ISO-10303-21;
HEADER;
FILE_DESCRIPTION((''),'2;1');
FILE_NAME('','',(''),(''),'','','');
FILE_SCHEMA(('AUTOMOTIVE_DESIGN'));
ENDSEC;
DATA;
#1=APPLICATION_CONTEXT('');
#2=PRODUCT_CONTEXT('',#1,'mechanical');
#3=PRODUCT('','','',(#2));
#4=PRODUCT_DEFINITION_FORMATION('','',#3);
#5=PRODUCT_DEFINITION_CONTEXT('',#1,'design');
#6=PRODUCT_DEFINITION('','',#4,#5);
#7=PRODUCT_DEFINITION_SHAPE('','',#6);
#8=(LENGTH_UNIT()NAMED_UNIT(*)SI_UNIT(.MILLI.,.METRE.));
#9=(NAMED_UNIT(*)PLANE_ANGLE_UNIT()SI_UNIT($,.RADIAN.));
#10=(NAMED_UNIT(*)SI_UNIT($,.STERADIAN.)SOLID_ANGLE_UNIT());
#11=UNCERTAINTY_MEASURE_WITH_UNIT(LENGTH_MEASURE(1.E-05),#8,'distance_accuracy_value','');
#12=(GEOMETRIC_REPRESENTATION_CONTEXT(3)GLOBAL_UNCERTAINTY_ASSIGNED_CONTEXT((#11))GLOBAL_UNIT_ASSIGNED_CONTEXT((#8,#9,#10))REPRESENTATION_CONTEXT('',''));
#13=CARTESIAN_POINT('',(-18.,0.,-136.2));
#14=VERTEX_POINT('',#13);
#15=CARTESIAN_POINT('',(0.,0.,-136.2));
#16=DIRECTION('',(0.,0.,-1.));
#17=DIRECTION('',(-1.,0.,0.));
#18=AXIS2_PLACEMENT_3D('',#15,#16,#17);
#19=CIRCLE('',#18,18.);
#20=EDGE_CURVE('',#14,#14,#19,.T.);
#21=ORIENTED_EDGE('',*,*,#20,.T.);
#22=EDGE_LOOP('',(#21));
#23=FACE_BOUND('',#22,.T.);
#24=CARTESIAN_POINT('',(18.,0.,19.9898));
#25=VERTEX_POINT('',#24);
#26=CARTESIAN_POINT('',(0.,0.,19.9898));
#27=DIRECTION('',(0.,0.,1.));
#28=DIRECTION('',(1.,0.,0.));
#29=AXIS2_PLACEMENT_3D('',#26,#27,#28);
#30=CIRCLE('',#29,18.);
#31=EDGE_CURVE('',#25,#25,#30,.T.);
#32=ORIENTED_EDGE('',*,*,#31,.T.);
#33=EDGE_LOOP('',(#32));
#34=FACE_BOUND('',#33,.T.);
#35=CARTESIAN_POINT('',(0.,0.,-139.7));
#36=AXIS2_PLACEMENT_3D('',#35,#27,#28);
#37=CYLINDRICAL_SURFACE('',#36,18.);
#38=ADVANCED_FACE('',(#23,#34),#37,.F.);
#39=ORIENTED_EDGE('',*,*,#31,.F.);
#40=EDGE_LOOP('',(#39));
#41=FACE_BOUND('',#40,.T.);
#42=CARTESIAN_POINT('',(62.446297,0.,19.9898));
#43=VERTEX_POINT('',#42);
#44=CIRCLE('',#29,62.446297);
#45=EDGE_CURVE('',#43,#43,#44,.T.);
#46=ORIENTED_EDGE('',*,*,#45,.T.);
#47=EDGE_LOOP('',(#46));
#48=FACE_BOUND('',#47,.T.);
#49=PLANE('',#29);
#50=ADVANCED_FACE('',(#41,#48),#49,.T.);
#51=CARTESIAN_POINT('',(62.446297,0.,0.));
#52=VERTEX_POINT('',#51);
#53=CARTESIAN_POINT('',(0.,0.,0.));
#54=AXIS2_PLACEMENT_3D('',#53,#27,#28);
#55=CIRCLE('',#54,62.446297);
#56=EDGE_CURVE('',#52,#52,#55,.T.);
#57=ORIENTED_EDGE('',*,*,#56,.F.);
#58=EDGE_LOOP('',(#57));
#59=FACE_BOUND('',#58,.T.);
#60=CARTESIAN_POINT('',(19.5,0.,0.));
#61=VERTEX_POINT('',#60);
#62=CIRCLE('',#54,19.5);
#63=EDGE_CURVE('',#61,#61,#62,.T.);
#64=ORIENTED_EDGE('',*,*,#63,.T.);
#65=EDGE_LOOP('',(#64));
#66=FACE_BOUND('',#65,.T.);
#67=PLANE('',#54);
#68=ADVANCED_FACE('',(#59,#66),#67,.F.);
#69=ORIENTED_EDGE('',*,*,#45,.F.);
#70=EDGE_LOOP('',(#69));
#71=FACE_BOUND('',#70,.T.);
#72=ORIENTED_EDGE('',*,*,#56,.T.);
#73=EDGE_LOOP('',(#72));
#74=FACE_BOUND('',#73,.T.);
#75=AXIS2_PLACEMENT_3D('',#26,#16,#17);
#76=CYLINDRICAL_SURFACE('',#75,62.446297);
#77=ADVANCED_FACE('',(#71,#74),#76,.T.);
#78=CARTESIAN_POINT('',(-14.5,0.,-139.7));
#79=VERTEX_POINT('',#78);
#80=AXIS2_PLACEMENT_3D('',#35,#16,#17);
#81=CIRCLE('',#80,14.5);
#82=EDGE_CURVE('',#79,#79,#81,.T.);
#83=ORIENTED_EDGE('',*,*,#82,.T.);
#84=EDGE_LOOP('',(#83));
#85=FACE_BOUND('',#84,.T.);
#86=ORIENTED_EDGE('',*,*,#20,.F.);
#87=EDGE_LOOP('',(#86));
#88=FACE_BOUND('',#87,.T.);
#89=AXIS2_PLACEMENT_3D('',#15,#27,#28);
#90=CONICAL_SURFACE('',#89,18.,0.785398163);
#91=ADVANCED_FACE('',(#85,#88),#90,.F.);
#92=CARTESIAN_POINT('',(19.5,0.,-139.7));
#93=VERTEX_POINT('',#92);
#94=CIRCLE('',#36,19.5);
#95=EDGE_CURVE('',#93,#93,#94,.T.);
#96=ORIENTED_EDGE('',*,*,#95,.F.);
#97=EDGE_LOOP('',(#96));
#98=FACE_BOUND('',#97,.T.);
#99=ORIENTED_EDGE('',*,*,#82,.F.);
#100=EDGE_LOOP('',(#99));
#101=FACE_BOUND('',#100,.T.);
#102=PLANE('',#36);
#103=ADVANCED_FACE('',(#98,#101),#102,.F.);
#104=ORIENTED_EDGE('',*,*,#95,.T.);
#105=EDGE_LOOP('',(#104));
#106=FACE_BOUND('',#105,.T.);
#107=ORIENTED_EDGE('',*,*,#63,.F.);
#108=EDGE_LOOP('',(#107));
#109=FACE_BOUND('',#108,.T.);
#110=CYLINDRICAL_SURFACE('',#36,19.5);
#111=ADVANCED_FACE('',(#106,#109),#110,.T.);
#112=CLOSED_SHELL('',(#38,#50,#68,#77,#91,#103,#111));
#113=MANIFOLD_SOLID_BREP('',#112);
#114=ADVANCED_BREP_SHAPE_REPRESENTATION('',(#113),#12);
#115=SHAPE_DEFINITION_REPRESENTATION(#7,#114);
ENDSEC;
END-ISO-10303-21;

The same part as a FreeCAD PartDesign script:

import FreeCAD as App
import Part
import Sketcher

doc = App.newDocument("Part")
body = doc.addObject("PartDesign::Body", "Body")

# Sketch on XY plane
sketch1 = body.newObject("Sketcher::SketchObject", "Sketch")
sketch1.AttachmentSupport = (doc.getObject("XY_Plane"), [""])
sketch1.MapMode = "FlatFace"
sketch1.addGeometry([
    Part.Circle(App.Vector(0, 0, 0), App.Vector(0, 0, 1), 20),
    Part.Circle(App.Vector(0, 0, 0), App.Vector(0, 0, 1), 18),
], False)
sketch1.addConstraint([
    Sketcher.Constraint("Coincident", 0, 3, -1, 1),
    Sketcher.Constraint("Coincident", 1, 3, -1, 1),
    Sketcher.Constraint("Diameter", 0, 39.0),
    Sketcher.Constraint("Diameter", 1, 36.0),
])
pad1 = body.newObject("PartDesign::Pad", "Pad")
pad1.Profile = sketch1
pad1.Length = 139.7
pad1.Reversed = True

# Sketch on XY plane
sketch2 = body.newObject("Sketcher::SketchObject", "Sketch001")
sketch2.AttachmentSupport = (doc.getObject("XY_Plane"), [""])
sketch2.MapMode = "FlatFace"
sketch2.AttachmentOffset = App.Placement(App.Vector(0, 0, 19.9898), App.Rotation())
sketch2.addGeometry([
    Part.Circle(App.Vector(0, 0, 0), App.Vector(0, 0, 1), 62),
    Part.Circle(App.Vector(0, 0, 0), App.Vector(0, 0, 1), 18),
], False)
sketch2.addConstraint([
    Sketcher.Constraint("Coincident", 0, 3, -1, 1),
    Sketcher.Constraint("Coincident", 1, 3, -1, 1),
    Sketcher.Constraint("Diameter", 1, 36.0),
    Sketcher.Constraint("Diameter", 0, 124.892594),
])
pad2 = body.newObject("PartDesign::Pad", "Pad001")
pad2.Profile = sketch2
pad2.Length = 19.9898
pad2.Reversed = True

# Sketch on YZ plane
sketch3 = body.newObject("Sketcher::SketchObject", "Sketch002")
sketch3.AttachmentSupport = (doc.getObject("YZ_Plane"), [""])
sketch3.MapMode = "FlatFace"
sketch3.addGeometry([
    Part.LineSegment(App.Vector(14.5, -139.7, 0), App.Vector(18, -139.7, 0)),
    Part.LineSegment(App.Vector(18, -139.7, 0), App.Vector(18, -136.2, 0)),
    Part.LineSegment(App.Vector(18, -136.2, 0), App.Vector(14.5, -139.7, 0)),
], False)
sketch3.addConstraint([
    Sketcher.Constraint("Coincident", 0, 2, 1, 1),
    Sketcher.Constraint("Coincident", 1, 2, 2, 1),
    Sketcher.Constraint("Coincident", 2, 2, 0, 1),
    Sketcher.Constraint("Horizontal", 0),
    Sketcher.Constraint("Vertical", 1),
    Sketcher.Constraint("Equal", 0, 1),
    Sketcher.Constraint("DistanceX", 0, 1, 0, 2, 3.5),
    Sketcher.Constraint("DistanceX", -1, 1, 0, 2, 18.0),
    Sketcher.Constraint("DistanceY", 0, 2, -1, 1, 139.7),
])
revolution = body.newObject("PartDesign::Revolution", "Revolution")
revolution.Profile = sketch3
revolution.ReferenceAxis = (sketch3, ["V_Axis"])
revolution.Angle = 360

doc.recompute()
